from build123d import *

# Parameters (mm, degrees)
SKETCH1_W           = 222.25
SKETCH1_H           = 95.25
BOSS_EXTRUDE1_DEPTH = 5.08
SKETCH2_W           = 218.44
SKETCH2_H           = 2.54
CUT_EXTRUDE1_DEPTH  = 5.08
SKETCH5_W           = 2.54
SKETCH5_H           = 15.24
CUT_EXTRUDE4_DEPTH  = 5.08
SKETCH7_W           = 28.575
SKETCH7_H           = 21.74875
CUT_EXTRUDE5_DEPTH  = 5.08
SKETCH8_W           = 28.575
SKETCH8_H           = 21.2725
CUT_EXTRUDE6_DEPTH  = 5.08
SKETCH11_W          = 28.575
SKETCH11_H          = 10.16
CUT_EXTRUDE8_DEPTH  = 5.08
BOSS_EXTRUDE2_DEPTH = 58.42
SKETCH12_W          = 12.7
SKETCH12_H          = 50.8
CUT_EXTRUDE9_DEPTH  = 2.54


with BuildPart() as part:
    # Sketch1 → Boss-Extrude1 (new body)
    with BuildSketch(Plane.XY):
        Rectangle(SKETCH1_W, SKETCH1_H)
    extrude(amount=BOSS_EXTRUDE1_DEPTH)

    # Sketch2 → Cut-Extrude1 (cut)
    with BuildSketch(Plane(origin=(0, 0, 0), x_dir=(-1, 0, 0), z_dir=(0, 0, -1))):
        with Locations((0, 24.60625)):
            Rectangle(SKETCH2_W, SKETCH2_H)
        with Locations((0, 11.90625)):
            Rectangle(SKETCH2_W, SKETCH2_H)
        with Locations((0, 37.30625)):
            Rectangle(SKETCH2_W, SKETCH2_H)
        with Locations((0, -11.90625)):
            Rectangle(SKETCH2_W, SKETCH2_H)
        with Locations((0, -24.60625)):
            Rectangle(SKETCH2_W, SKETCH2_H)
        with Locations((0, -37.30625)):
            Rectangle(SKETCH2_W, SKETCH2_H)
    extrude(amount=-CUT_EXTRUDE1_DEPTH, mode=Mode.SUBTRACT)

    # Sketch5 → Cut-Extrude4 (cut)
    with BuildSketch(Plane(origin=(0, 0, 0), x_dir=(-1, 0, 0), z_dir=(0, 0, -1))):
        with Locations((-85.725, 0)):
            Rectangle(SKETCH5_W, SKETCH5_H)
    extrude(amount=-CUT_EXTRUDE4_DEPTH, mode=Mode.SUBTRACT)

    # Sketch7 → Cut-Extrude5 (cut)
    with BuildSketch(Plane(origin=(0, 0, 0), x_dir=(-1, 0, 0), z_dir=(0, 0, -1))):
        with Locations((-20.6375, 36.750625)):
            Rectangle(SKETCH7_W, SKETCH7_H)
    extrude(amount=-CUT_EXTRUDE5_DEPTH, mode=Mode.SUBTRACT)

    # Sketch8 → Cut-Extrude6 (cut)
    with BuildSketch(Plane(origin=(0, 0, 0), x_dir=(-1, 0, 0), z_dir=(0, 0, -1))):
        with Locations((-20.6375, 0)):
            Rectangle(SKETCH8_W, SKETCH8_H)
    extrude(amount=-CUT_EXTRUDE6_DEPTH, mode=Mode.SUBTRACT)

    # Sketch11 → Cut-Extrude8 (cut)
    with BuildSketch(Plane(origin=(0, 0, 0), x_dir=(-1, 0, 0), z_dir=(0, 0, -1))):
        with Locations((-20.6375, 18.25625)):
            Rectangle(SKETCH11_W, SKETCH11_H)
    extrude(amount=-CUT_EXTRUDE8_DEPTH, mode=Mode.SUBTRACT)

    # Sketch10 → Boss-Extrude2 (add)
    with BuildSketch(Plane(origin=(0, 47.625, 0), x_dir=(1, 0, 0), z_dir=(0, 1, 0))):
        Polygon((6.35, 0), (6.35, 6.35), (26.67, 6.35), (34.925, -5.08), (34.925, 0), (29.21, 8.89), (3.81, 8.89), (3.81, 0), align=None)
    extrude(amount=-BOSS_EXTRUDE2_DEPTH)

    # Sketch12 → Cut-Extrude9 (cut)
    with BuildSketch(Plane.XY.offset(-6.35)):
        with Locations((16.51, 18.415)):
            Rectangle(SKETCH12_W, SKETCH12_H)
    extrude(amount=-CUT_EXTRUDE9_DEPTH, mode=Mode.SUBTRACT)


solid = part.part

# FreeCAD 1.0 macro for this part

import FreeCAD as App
import Part
import Sketcher
from FreeCAD import Vector
Q = App.Units.Quantity


def add_polygon(sketch, points):
    """Adds a closed chain of lines whose ends are joined by coincident constraints."""
    first, n = sketch.GeometryCount, len(points)
    for a, b in zip(points, points[1:] + points[:1]):
        sketch.addGeometry(Part.LineSegment(App.Vector(*a, 0), App.Vector(*b, 0)), False)
    for i in range(n):
        sketch.addConstraint(Sketcher.Constraint("Coincident", first + i, 2, first + (i + 1) % n, 1))

doc = App.newDocument("Part")
body = doc.addObject("PartDesign::Body", "Body")

sketch1 = doc.addObject("Sketcher::SketchObject", "Sketch")
body.addObject(sketch1)
sketch1.AttachmentSupport = (doc.XY_Plane, [""])
sketch1.MapMode = "FlatFace"
add_polygon(sketch1, [(-111, 48), (-111, -48), (111, -48), (111, 48)])
sketch1.addConstraint(Sketcher.Constraint("Vertical", 0))
sketch1.addConstraint(Sketcher.Constraint("Horizontal", 1))
sketch1.addConstraint(Sketcher.Constraint("Vertical", 2))
sketch1.addConstraint(Sketcher.Constraint("Horizontal", 3))
sketch1.addConstraint(Sketcher.Constraint("Symmetric", 0, 2, 2, 2, -1, 1))
sketch1.addConstraint(Sketcher.Constraint("DistanceX", 1, 1, 1, 2, Q("8.75 in")))
sketch1.addConstraint(Sketcher.Constraint("DistanceY", 0, 2, 0, 1, Q("3.75 in")))
pad1 = doc.addObject("PartDesign::Pad", "Pad")
body.addObject(pad1)
pad1.Profile = sketch1
pad1.Length = Q("0.2 in")

sketch2 = doc.addObject("Sketcher::SketchObject", "Sketch001")
body.addObject(sketch2)
sketch2.AttachmentSupport = (doc.XY_Plane, [""])
sketch2.MapMode = "FlatFace"
add_polygon(sketch2, [(109.2, 25.9), (109.2, 23.3), (-109.2, 23.3), (-109.2, 25.9)])
add_polygon(sketch2, [(109.2, 13.2), (109.2, 10.6), (-109.2, 10.6), (-109.2, 13.2)])
add_polygon(sketch2, [(109.2, 38.6), (109.2, 36), (-109.2, 36), (-109.2, 38.6)])
add_polygon(sketch2, [(109.2, -10.6), (109.2, -13.2), (-109.2, -13.2), (-109.2, -10.6)])
add_polygon(sketch2, [(109.2, -23.3), (109.2, -25.9), (-109.2, -25.9), (-109.2, -23.3)])
add_polygon(sketch2, [(109.2, -36), (109.2, -38.6), (-109.2, -38.6), (-109.2, -36)])
sketch2.addConstraint(Sketcher.Constraint("Vertical", 0))
sketch2.addConstraint(Sketcher.Constraint("Horizontal", 1))
sketch2.addConstraint(Sketcher.Constraint("Vertical", 2))
sketch2.addConstraint(Sketcher.Constraint("Horizontal", 3))
sketch2.addConstraint(Sketcher.Constraint("Vertical", 4))
sketch2.addConstraint(Sketcher.Constraint("Horizontal", 5))
sketch2.addConstraint(Sketcher.Constraint("Vertical", 6))
sketch2.addConstraint(Sketcher.Constraint("Horizontal", 7))
sketch2.addConstraint(Sketcher.Constraint("Vertical", 8))
sketch2.addConstraint(Sketcher.Constraint("Horizontal", 9))
sketch2.addConstraint(Sketcher.Constraint("Vertical", 10))
sketch2.addConstraint(Sketcher.Constraint("Horizontal", 11))
sketch2.addConstraint(Sketcher.Constraint("Vertical", 12))
sketch2.addConstraint(Sketcher.Constraint("Horizontal", 13))
sketch2.addConstraint(Sketcher.Constraint("Vertical", 14))
sketch2.addConstraint(Sketcher.Constraint("Horizontal", 15))
sketch2.addConstraint(Sketcher.Constraint("Vertical", 16))
sketch2.addConstraint(Sketcher.Constraint("Horizontal", 17))
sketch2.addConstraint(Sketcher.Constraint("Vertical", 18))
sketch2.addConstraint(Sketcher.Constraint("Horizontal", 19))
sketch2.addConstraint(Sketcher.Constraint("Vertical", 20))
sketch2.addConstraint(Sketcher.Constraint("Horizontal", 21))
sketch2.addConstraint(Sketcher.Constraint("Vertical", 22))
sketch2.addConstraint(Sketcher.Constraint("Horizontal", 23))
sketch2.addConstraint(Sketcher.Constraint("Symmetric", 6, 2, 12, 2, -1, 1))
sketch2.addConstraint(Sketcher.Constraint("Symmetric", 4, 2, 14, 2, -1, 1))
sketch2.addConstraint(Sketcher.Constraint("Symmetric", 2, 2, 16, 2, -1, 1))
sketch2.addConstraint(Sketcher.Constraint("Symmetric", 0, 2, 18, 2, -1, 1))
sketch2.addConstraint(Sketcher.Constraint("Symmetric", 10, 2, 20, 2, -1, 1))
sketch2.addConstraint(Sketcher.Constraint("Symmetric", 8, 2, 22, 2, -1, 1))
sketch2.addConstraint(Sketcher.Constraint("Vertical", 3, 2, 4, 2))
sketch2.addConstraint(Sketcher.Constraint("Vertical", 2, 2, 5, 2))
sketch2.addConstraint(Sketcher.Constraint("Vertical", 7, 2, 8, 2))
sketch2.addConstraint(Sketcher.Constraint("Vertical", 6, 2, 9, 2))
sketch2.addConstraint(Sketcher.Constraint("Vertical", 11, 2, 12, 2))
sketch2.addConstraint(Sketcher.Constraint("Equal", 2, 4))
sketch2.addConstraint(Sketcher.Constraint("Equal", 6, 8))
sketch2.addConstraint(Sketcher.Constraint("DistanceX", 1, 2, 1, 1, Q("8.6 in")))
sketch2.addConstraint(Sketcher.Constraint("DistanceY", 0, 2, 0, 1, Q("0.1 in")))
sketch2.addConstraint(Sketcher.Constraint("DistanceY", 4, 2, 8, 2, Q("1 in")))
sketch2.addConstraint(Sketcher.Constraint("DistanceY", 4, 2, 0, 2, Q("0.5 in")))
sketch2.addConstraint(Sketcher.Constraint("DistanceY", 12, 2, 4, 2, Q("0.9375 in")))
pocket1 = doc.addObject("PartDesign::Pocket", "Pocket")
body.addObject(pocket1)
pocket1.Profile = sketch2
pocket1.Length = Q("0.2 in")
pocket1.Reversed = True

sketch3 = doc.addObject("Sketcher::SketchObject", "Sketch002")
body.addObject(sketch3)
sketch3.AttachmentSupport = (doc.XY_Plane, [""])
sketch3.MapMode = "FlatFace"
add_polygon(sketch3, [(87, 7.6), (87, -7.6), (84.5, -7.6), (84.5, 7.6)])
sketch3.addConstraint(Sketcher.Constraint("Vertical", 0))
sketch3.addConstraint(Sketcher.Constraint("Horizontal", 1))
sketch3.addConstraint(Sketcher.Constraint("Vertical", 2))
sketch3.addConstraint(Sketcher.Constraint("Horizontal", 3))
sketch3.addConstraint(Sketcher.Constraint("DistanceX", 1, 2, 1, 1, Q("0.1 in")))
sketch3.addConstraint(Sketcher.Constraint("DistanceY", 0, 2, 0, 1, Q("0.6 in")))
sketch3.addConstraint(Sketcher.Constraint("DistanceY", 0, 2, -1, 1, Q("0.3 in")))
sketch3.addConstraint(Sketcher.Constraint("DistanceX", -1, 1, 0, 2, Q("3.425 in")))
pocket2 = doc.addObject("PartDesign::Pocket", "Pocket001")
body.addObject(pocket2)
pocket2.Profile = sketch3
pocket2.Length = Q("0.2 in")
pocket2.Reversed = True

sketch4 = doc.addObject("Sketcher::SketchObject", "Sketch003")
body.addObject(sketch4)
sketch4.AttachmentSupport = (doc.XY_Plane, [""])
sketch4.MapMode = "FlatFace"
add_polygon(sketch4, [(35, 48), (35, 26), (6, 26), (6, 48)])
sketch4.addConstraint(Sketcher.Constraint("Vertical", 0))
sketch4.addConstraint(Sketcher.Constraint("Horizontal", 1))
sketch4.addConstraint(Sketcher.Constraint("Vertical", 2))
sketch4.addConstraint(Sketcher.Constraint("Horizontal", 3))
sketch4.addConstraint(Sketcher.Constraint("DistanceX", 1, 2, 1, 1, Q("1.125 in")))
sketch4.addConstraint(Sketcher.Constraint("DistanceX", -1, 1, 1, 2, Q("0.25 in")))
sketch4.addConstraint(Sketcher.Constraint("DistanceY", -1, 1, 2, 2, Q("1.875 in")))
sketch4.addConstraint(Sketcher.Constraint("DistanceY", 0, 2, 0, 1, 21.74875))
pocket3 = doc.addObject("PartDesign::Pocket", "Pocket002")
body.addObject(pocket3)
pocket3.Profile = sketch4
pocket3.Length = Q("0.2 in")
pocket3.Reversed = True

sketch5 = doc.addObject("Sketcher::SketchObject", "Sketch004")
body.addObject(sketch5)
sketch5.AttachmentSupport = (doc.XY_Plane, [""])
sketch5.MapMode = "FlatFace"
add_polygon(sketch5, [(35, 11), (35, -11), (6, -11), (6, 11)])
sketch5.addConstraint(Sketcher.Constraint("Vertical", 0))
sketch5.addConstraint(Sketcher.Constraint("Horizontal", 1))
sketch5.addConstraint(Sketcher.Constraint("Vertical", 2))
sketch5.addConstraint(Sketcher.Constraint("Horizontal", 3))
sketch5.addConstraint(Sketcher.Constraint("DistanceX", 1, 2, 1, 1, Q("1.125 in")))
sketch5.addConstraint(Sketcher.Constraint("DistanceX", -1, 1, 1, 2, Q("0.25 in")))
sketch5.addConstraint(Sketcher.Constraint("DistanceY", 0, 2, 0, 1, Q("0.8375 in")))
sketch5.addConstraint(Sketcher.Constraint("DistanceY", 0, 2, -1, 1, 10.63625))
pocket4 = doc.addObject("PartDesign::Pocket", "Pocket003")
body.addObject(pocket4)
pocket4.Profile = sketch5
pocket4.Length = Q("0.2 in")
pocket4.Reversed = True

sketch6 = doc.addObject("Sketcher::SketchObject", "Sketch005")
body.addObject(sketch6)
sketch6.AttachmentSupport = (doc.XY_Plane, [""])
sketch6.MapMode = "FlatFace"
add_polygon(sketch6, [(35, 23), (35, 13), (6, 13), (6, 23)])
sketch6.addConstraint(Sketcher.Constraint("Vertical", 0))
sketch6.addConstraint(Sketcher.Constraint("Horizontal", 1))
sketch6.addConstraint(Sketcher.Constraint("Vertical", 2))
sketch6.addConstraint(Sketcher.Constraint("Horizontal", 3))
sketch6.addConstraint(Sketcher.Constraint("DistanceY", 0, 2, 0, 1, Q("0.4 in")))
sketch6.addConstraint(Sketcher.Constraint("DistanceX", 1, 2, 1, 1, Q("1.125 in")))
sketch6.addConstraint(Sketcher.Constraint("DistanceX", -1, 1, 1, 2, Q("0.25 in")))
sketch6.addConstraint(Sketcher.Constraint("DistanceY", -1, 1, 0, 2, 13.17625))
pocket5 = doc.addObject("PartDesign::Pocket", "Pocket004")
body.addObject(pocket5)
pocket5.Profile = sketch6
pocket5.Length = Q("0.2 in")
pocket5.Reversed = True

sketch7 = doc.addObject("Sketcher::SketchObject", "Sketch006")
body.addObject(sketch7)
sketch7.AttachmentSupport = (doc.XZ_Plane, [""])
sketch7.MapMode = "FlatFace"
sketch7.AttachmentOffset = App.Placement(Vector(0, 0, -1.875 * 25.4), App.Rotation())
add_polygon(sketch7, [(6.3, 0), (6.3, -6.3), (26.7, -6.3), (34.9, 5.1), (34.9, 0), (29.2, -8.9), (3.8, -8.9), (3.8, 0)])
sketch7.addConstraint(Sketcher.Constraint("Vertical", 0))
sketch7.addConstraint(Sketcher.Constraint("Horizontal", 1))
sketch7.addConstraint(Sketcher.Constraint("Vertical", 3))
sketch7.addConstraint(Sketcher.Constraint("Horizontal", 5))
sketch7.addConstraint(Sketcher.Constraint("Vertical", 6))
sketch7.addConstraint(Sketcher.Constraint("Horizontal", 7))
sketch7.addConstraint(Sketcher.Constraint("PointOnObject", 3, 2, -1))
sketch7.addConstraint(Sketcher.Constraint("PointOnObject", 6, 2, -1))
sketch7.addConstraint(Sketcher.Constraint("DistanceX", 5, 2, 5, 1, Q("1 in")))
sketch7.addConstraint(Sketcher.Constraint("DistanceX", 1, 1, 1, 2, Q("0.8 in")))
sketch7.addConstraint(Sketcher.Constraint("DistanceX", 7, 1, 7, 2, Q("0.1 in")))
sketch7.addConstraint(Sketcher.Constraint("DistanceY", 3, 2, 3, 1, Q("0.2 in")))
sketch7.addConstraint(Sketcher.Constraint("DistanceY", 0, 2, 0, 1, Q("0.25 in")))
sketch7.addConstraint(Sketcher.Constraint("DistanceY", 6, 1, 6, 2, Q("0.35 in")))
sketch7.addConstraint(Sketcher.Constraint("DistanceX", -1, 1, 0, 2, Q("0.25 in")))
sketch7.addConstraint(Sketcher.Constraint("DistanceX", -1, 1, 2, 2, Q("1.375 in")))
pad2 = doc.addObject("PartDesign::Pad", "Pad001")
body.addObject(pad2)
pad2.Profile = sketch7
pad2.Length = Q("2.3 in")

sketch8 = doc.addObject("Sketcher::SketchObject", "Sketch007")
body.addObject(sketch8)
sketch8.AttachmentSupport = (doc.XY_Plane, [""])
sketch8.MapMode = "FlatFace"
sketch8.AttachmentOffset = App.Placement(Vector(0, 0, -0.25 * 25.4), App.Rotation())
add_polygon(sketch8, [(10, 44), (10, -7), (23, -7), (23, 44)])
sketch8.addConstraint(Sketcher.Constraint("Vertical", 0))
sketch8.addConstraint(Sketcher.Constraint("Horizontal", 1))
sketch8.addConstraint(Sketcher.Constraint("Vertical", 2))
sketch8.addConstraint(Sketcher.Constraint("Horizontal", 3))
sketch8.addConstraint(Sketcher.Constraint("DistanceY", 0, 2, 0, 1, Q("2 in")))
sketch8.addConstraint(Sketcher.Constraint("DistanceX", 1, 1, 1, 2, Q("0.5 in")))
sketch8.addConstraint(Sketcher.Constraint("DistanceX", -1, 1, 0, 2, Q("0.4 in")))
sketch8.addConstraint(Sketcher.Constraint("DistanceY", 0, 2, -1, 1, Q("0.275 in")))
pocket6 = doc.addObject("PartDesign::Pocket", "Pocket005")
body.addObject(pocket6)
pocket6.Profile = sketch8
pocket6.Length = Q("0.1 in")

doc.recompute()
